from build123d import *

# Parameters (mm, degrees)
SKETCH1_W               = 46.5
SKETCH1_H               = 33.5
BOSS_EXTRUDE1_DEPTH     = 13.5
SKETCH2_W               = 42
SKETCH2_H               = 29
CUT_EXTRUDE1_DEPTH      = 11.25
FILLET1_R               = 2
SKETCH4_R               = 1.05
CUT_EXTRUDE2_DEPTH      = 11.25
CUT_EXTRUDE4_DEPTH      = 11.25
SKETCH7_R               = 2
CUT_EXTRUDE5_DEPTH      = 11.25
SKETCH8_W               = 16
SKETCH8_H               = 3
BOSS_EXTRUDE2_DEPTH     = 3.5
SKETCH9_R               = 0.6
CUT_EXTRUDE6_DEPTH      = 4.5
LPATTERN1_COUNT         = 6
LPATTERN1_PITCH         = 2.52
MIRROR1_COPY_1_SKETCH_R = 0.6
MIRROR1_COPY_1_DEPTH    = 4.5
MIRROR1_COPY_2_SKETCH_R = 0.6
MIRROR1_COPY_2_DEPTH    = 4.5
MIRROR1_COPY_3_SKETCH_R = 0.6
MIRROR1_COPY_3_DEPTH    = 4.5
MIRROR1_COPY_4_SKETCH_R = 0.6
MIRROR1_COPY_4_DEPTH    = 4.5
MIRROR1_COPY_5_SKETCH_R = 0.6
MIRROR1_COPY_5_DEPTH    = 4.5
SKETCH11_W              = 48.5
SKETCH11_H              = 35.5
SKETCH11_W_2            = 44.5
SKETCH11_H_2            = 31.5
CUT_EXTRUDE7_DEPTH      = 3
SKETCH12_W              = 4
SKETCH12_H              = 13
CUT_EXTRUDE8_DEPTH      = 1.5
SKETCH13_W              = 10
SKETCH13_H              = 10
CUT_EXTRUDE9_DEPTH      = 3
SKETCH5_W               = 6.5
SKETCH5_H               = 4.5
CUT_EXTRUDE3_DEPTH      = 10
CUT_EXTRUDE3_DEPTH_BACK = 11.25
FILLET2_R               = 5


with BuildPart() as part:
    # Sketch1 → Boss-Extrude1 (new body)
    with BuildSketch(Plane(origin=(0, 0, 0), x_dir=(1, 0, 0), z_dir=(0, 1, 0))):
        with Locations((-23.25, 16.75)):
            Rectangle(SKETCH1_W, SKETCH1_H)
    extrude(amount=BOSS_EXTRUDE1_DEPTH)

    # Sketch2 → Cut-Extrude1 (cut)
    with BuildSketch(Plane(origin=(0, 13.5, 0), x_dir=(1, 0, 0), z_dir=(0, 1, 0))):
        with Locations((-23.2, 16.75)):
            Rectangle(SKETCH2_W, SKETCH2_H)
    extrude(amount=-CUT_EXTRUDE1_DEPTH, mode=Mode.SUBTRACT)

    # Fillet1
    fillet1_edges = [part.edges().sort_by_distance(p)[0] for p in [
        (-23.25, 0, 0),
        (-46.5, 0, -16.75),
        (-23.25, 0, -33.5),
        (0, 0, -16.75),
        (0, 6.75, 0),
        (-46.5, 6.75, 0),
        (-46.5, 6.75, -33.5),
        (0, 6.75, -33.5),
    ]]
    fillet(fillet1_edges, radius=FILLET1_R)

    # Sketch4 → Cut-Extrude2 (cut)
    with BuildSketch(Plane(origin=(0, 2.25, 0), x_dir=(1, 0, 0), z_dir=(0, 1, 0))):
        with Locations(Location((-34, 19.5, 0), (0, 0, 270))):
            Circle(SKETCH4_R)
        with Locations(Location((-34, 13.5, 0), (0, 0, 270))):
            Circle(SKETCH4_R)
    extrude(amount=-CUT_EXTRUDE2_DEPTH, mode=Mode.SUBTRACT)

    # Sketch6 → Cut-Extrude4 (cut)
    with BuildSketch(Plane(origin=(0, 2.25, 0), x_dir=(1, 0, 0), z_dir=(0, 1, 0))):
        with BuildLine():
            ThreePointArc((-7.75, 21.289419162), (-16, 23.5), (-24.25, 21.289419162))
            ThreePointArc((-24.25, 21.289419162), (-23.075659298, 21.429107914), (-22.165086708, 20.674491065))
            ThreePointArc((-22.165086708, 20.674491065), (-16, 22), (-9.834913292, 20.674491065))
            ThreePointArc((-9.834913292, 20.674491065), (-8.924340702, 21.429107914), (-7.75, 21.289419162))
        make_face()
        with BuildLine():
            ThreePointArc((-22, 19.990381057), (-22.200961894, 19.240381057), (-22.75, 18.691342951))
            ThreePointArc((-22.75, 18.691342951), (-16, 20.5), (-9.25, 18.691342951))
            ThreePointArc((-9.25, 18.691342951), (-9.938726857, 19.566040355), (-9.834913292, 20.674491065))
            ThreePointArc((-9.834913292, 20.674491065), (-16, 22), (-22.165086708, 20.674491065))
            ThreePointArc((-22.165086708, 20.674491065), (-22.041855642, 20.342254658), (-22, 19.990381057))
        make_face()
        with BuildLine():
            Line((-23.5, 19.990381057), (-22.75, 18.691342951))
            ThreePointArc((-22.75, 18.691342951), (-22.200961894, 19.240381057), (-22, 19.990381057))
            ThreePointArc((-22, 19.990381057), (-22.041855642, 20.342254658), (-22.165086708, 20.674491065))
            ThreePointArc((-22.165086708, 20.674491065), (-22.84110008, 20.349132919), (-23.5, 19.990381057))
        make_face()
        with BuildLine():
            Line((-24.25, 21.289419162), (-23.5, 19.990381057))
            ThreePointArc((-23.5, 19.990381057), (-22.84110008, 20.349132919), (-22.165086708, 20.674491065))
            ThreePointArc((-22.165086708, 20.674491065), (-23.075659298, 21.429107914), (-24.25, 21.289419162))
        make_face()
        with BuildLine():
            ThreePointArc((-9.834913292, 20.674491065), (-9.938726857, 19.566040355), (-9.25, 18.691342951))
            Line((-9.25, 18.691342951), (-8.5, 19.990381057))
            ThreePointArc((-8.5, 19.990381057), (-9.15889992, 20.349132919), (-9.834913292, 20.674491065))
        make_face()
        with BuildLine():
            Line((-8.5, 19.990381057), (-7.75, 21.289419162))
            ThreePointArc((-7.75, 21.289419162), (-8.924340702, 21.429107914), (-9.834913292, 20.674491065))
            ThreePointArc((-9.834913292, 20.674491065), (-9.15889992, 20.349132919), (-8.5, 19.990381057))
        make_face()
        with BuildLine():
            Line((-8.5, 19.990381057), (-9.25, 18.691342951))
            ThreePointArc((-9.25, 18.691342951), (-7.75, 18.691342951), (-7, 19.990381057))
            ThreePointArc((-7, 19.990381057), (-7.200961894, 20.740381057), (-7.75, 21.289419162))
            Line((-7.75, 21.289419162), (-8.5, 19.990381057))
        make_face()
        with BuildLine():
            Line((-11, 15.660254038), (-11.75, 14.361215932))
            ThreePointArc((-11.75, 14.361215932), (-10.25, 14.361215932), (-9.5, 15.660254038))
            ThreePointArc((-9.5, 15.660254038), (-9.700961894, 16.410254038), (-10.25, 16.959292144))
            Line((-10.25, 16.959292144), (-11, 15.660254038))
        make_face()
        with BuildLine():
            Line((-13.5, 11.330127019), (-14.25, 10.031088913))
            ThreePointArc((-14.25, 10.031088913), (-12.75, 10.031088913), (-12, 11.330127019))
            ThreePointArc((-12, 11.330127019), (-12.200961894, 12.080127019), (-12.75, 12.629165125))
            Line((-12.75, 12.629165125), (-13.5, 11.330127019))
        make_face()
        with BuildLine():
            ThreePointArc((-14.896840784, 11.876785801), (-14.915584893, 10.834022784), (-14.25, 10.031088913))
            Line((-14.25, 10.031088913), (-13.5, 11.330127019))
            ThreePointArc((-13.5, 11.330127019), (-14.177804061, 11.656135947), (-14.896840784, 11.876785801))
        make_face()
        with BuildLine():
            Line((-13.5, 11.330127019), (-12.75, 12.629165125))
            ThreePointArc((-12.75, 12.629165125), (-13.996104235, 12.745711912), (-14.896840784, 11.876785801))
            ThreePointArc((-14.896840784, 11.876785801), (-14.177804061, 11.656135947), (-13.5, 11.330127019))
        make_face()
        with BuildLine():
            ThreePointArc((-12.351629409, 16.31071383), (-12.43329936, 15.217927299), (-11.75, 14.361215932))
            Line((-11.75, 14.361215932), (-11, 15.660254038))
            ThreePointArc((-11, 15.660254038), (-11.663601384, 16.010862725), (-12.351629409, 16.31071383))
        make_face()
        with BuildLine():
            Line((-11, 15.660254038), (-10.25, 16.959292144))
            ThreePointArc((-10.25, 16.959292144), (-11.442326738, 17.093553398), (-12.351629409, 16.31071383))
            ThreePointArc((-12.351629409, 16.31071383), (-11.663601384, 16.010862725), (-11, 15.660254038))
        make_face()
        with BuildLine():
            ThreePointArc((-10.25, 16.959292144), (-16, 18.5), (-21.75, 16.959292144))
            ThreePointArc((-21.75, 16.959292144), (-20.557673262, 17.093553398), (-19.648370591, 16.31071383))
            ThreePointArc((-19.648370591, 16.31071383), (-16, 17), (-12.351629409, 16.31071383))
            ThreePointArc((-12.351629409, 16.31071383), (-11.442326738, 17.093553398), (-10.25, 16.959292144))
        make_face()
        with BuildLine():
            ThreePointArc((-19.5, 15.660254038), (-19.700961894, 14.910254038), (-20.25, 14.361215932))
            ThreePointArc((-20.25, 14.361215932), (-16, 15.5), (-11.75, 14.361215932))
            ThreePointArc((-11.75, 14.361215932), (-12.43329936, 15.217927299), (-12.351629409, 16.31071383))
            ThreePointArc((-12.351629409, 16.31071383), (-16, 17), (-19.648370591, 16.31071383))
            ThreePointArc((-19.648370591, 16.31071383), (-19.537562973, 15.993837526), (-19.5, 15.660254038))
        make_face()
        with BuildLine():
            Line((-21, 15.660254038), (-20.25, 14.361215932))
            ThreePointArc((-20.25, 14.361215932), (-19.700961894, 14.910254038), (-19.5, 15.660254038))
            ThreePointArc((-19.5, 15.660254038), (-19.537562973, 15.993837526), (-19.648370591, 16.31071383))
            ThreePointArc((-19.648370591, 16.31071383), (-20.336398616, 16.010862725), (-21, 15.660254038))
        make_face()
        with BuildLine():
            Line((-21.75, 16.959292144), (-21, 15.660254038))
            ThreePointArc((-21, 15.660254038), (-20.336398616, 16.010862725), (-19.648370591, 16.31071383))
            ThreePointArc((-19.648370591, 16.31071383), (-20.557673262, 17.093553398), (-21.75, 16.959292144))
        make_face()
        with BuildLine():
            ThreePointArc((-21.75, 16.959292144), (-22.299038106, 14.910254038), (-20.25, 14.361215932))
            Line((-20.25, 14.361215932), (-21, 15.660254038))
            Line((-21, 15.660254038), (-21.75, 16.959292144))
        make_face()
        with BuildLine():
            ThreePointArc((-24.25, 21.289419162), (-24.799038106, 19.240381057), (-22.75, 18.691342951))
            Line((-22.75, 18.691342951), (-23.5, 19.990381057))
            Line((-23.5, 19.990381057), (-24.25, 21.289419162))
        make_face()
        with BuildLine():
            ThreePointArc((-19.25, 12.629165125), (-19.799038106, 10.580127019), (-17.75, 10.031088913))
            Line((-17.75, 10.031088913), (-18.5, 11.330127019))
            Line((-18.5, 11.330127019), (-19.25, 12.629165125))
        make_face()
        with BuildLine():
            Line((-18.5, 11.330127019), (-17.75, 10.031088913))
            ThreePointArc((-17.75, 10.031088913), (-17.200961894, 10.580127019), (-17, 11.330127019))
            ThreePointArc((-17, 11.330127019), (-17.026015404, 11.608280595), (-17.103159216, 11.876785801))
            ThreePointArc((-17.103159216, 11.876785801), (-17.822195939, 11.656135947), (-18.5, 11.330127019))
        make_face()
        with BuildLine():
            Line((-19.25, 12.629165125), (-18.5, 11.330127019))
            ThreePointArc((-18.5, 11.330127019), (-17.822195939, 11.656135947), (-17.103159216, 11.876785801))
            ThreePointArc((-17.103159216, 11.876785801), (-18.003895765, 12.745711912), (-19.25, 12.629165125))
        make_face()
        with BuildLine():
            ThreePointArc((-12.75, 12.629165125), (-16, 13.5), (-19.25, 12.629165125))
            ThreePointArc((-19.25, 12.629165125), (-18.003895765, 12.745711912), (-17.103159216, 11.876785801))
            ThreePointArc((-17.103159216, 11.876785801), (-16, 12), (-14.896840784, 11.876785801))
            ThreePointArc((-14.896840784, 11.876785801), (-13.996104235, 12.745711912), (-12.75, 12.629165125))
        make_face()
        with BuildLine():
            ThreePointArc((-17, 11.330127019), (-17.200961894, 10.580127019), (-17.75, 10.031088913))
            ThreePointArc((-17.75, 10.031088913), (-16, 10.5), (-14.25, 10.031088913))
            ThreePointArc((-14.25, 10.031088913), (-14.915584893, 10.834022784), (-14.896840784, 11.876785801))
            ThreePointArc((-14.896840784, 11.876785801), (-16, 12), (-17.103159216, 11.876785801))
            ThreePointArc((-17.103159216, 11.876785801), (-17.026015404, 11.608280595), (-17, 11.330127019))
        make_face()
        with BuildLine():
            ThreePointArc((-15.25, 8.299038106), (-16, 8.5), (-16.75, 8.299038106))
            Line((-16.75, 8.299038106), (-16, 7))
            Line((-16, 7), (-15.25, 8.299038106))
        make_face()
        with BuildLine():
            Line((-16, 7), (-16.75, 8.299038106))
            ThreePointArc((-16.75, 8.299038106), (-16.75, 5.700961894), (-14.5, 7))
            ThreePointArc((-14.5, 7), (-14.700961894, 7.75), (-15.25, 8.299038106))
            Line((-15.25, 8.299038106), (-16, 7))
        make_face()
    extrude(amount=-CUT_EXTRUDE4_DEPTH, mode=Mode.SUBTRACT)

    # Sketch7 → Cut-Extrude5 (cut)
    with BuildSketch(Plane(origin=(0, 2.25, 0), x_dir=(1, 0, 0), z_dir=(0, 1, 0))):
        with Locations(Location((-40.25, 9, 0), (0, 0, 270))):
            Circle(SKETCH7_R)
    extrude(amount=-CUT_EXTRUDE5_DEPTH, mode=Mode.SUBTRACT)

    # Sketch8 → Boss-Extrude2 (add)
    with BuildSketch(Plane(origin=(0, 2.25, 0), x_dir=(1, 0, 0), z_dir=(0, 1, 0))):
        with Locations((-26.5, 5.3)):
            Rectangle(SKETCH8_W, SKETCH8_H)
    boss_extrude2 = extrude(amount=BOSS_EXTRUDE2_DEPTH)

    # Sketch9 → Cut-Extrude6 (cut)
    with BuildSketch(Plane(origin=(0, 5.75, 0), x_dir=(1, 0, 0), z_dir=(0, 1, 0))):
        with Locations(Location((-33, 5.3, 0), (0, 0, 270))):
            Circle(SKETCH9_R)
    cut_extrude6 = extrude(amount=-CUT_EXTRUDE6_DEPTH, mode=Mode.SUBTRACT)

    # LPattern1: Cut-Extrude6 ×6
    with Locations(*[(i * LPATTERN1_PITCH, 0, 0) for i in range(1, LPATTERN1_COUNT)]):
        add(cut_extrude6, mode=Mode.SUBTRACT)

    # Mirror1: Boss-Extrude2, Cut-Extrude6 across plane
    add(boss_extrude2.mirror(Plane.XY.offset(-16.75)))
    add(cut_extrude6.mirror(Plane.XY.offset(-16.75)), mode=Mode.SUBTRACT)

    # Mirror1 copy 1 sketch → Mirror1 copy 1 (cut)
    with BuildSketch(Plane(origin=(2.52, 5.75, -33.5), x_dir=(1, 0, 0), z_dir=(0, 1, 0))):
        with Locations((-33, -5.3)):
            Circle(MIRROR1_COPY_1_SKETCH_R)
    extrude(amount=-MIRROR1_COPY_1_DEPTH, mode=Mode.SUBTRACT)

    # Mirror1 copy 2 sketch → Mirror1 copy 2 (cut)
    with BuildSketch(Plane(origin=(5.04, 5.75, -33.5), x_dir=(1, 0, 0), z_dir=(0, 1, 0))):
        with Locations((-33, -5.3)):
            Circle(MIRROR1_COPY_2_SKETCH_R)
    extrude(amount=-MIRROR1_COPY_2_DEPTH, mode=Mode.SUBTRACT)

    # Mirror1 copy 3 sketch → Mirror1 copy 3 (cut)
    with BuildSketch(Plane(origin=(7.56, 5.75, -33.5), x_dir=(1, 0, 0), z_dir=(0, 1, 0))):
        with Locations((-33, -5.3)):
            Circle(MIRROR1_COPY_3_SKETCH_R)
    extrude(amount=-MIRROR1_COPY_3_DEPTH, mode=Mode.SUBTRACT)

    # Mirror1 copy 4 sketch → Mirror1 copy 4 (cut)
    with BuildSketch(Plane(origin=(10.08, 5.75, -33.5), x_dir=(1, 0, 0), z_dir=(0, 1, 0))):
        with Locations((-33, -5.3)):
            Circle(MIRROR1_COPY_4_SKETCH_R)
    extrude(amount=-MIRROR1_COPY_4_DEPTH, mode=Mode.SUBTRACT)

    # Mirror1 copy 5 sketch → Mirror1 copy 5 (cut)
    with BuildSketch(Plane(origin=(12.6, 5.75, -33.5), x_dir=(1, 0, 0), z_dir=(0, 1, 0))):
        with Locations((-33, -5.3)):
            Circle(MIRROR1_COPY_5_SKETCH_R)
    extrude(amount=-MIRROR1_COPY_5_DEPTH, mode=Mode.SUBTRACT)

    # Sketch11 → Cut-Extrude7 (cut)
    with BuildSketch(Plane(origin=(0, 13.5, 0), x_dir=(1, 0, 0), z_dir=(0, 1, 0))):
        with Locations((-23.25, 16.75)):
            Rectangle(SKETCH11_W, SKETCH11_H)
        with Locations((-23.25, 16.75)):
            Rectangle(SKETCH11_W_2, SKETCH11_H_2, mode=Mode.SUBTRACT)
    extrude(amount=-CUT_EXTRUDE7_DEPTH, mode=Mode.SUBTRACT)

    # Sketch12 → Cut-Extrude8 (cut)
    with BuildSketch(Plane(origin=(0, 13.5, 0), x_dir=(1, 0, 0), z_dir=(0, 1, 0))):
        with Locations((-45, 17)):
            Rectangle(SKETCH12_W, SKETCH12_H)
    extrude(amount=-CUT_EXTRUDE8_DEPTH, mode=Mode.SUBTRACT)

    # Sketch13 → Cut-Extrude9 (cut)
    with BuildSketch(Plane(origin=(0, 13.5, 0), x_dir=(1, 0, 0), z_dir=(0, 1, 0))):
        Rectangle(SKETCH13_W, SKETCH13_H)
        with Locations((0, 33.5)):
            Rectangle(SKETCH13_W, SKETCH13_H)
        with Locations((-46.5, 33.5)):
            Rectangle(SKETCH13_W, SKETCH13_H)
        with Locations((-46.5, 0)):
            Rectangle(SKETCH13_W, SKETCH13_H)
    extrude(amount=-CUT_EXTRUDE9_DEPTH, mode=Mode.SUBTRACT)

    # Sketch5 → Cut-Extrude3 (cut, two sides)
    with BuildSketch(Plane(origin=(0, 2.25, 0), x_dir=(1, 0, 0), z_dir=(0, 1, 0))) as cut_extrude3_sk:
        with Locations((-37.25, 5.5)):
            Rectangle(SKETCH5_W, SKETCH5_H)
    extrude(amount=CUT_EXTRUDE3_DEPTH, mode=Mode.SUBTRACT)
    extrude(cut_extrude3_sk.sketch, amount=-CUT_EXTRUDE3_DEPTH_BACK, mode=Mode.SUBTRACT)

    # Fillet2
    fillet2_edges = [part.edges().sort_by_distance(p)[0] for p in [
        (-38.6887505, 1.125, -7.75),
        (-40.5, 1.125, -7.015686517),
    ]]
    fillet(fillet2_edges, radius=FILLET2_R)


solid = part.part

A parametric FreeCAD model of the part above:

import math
import FreeCAD as App
import Part
import Sketcher

V = App.Vector


def edges_at(feature, points):
    """Names of the edges that pass closest to the given points."""
    edges = feature.Shape.Edges
    near = lambda p: min(range(len(edges)), key=lambda i: edges[i].distToShape(Part.Vertex(*p))[0])
    return sorted({f"Edge{near(p) + 1}" for p in points})


def add_polygon(sketch, points):
    """Adds a closed chain of lines whose ends are joined by coincident constraints."""
    first, n = sketch.GeometryCount, len(points)
    for a, b in zip(points, points[1:] + points[:1]):
        sketch.addGeometry(Part.LineSegment(App.Vector(*a, 0), App.Vector(*b, 0)), False)
    for i in range(n):
        sketch.addConstraint(Sketcher.Constraint("Coincident", first + i, 2, first + (i + 1) % n, 1))

doc = App.newDocument("Part")
body = doc.addObject("PartDesign::Body", "Body")

# Sketch on XZ plane
sketch1 = body.newObject("Sketcher::SketchObject", "Sketch")
sketch1.AttachmentSupport = (doc.getObject("XZ_Plane"), [""])
sketch1.MapMode = "FlatFace"
add_polygon(sketch1, [(-46, -34), (-46, 0), (0, 0), (0, -34)])  # lines 0-3
sketch1.addConstraint(Sketcher.Constraint("Vertical", 0))
sketch1.addConstraint(Sketcher.Constraint("Horizontal", 1))
sketch1.addConstraint(Sketcher.Constraint("Vertical", 2))
sketch1.addConstraint(Sketcher.Constraint("Horizontal", 3))
sketch1.addConstraint(Sketcher.Constraint("Coincident", 1, 2, -1, 1))
sketch1.addConstraint(Sketcher.Constraint("DistanceX", 1, 1, 1, 2, 46.5))
sketch1.addConstraint(Sketcher.Constraint("DistanceY", 0, 1, 0, 2, 33.5))
pad1 = body.newObject("PartDesign::Pad", "Pad")
pad1.Profile = sketch1
pad1.Length = 13.5
pad1.Reversed = True

# Sketch on XZ plane
sketch2 = body.newObject("Sketcher::SketchObject", "Sketch001")
sketch2.AttachmentSupport = (doc.getObject("XZ_Plane"), [""])
sketch2.MapMode = "FlatFace"
sketch2.AttachmentOffset = App.Placement(V(0, 0, -13.5), App.Rotation())
add_polygon(sketch2, [(-44, -31), (-44, -2), (-2, -2), (-2, -31)])  # lines 0-3
sketch2.addConstraint(Sketcher.Constraint("Vertical", 0))
sketch2.addConstraint(Sketcher.Constraint("Horizontal", 1))
sketch2.addConstraint(Sketcher.Constraint("Vertical", 2))
sketch2.addConstraint(Sketcher.Constraint("Horizontal", 3))
sketch2.addConstraint(Sketcher.Constraint("DistanceX", 1, 1, 1, 2, 42.0))
sketch2.addConstraint(Sketcher.Constraint("DistanceY", 0, 1, 0, 2, 29.0))
sketch2.addConstraint(Sketcher.Constraint("DistanceX", 0, 2, -1, 1, 44.2))
sketch2.addConstraint(Sketcher.Constraint("DistanceY", 0, 2, -1, 1, 2.25))
pocket1 = body.newObject("PartDesign::Pocket", "Pocket")
pocket1.Profile = sketch2
pocket1.Length = 11.25
pocket1.Reversed = True
doc.recompute()

fillet = body.newObject("PartDesign::Fillet", "Fillet")
fillet.Base = (pocket1, edges_at(pocket1, [
    (-23.25, 0, 0),
    (-46.5, 0, -16.75),
    (-23.25, 0, -33.5),
    (0, 0, -16.75),
    (0, 6.75, 0),
    (-46.5, 6.75, 0),
    (-46.5, 6.75, -33.5),
    (0, 6.75, -33.5),
]))
fillet.Radius = 2

# Sketch on XZ plane
sketch3 = body.newObject("Sketcher::SketchObject", "Sketch002")
sketch3.AttachmentSupport = (doc.getObject("XZ_Plane"), [""])
sketch3.MapMode = "FlatFace"
sketch3.AttachmentOffset = App.Placement(V(0, 0, -2.25), App.Rotation())
sketch3.addGeometry(Part.Circle(V(-34, -19.5, 0), V(0, 0, 1), 1.1), False)
sketch3.addGeometry(Part.Circle(V(-34, -13.5, 0), V(0, 0, 1), 1.1), False)
sketch3.addConstraint(Sketcher.Constraint("Equal", 0, 1))
sketch3.addConstraint(Sketcher.Constraint("Vertical", 0, 3, 1, 3))
sketch3.addConstraint(Sketcher.Constraint("Diameter", 0, 2.1))
sketch3.addConstraint(Sketcher.Constraint("DistanceX", 0, 3, -1, 1, 34.0))
sketch3.addConstraint(Sketcher.Constraint("DistanceY", 0, 3, 1, 3, 6.0))
sketch3.addConstraint(Sketcher.Constraint("DistanceY", 0, 3, -1, 1, 19.5))
pocket2 = body.newObject("PartDesign::Pocket", "Pocket001")
pocket2.Profile = sketch3
pocket2.Length = 11.25
pocket2.Reversed = True

# Sketch on XZ plane
sketch4 = body.newObject("Sketcher::SketchObject", "Sketch003")
sketch4.AttachmentSupport = (doc.getObject("XZ_Plane"), [""])
sketch4.MapMode = "FlatFace"
sketch4.AttachmentOffset = App.Placement(V(0, 0, -2.25), App.Rotation())
sketch4.addGeometry(Part.ArcOfCircle(Part.Circle(V(-16, -7, 0), V(0, 0, 1), 16.5), math.radians(-120), math.radians(-60)), False)
sketch4.addGeometry(Part.ArcOfCircle(Part.Circle(V(-23.5, -20, 0), V(0, 0, 1), 1.5), math.radians(60), math.radians(240)), False)
sketch4.addGeometry(Part.ArcOfCircle(Part.Circle(V(-16, -7, 0), V(0, 0, 1), 13.5), math.radians(-120), math.radians(-60)), False)
sketch4.addGeometry(Part.ArcOfCircle(Part.Circle(V(-8.5, -20, 0), V(0, 0, 1), 1.5), math.radians(0), math.radians(120)), False)
sketch4.addGeometry(Part.ArcOfCircle(Part.Circle(V(-8.5, -20, 0), V(0, 0, 1), 1.5), math.radians(-60), math.radians(0)), False)
sketch4.addGeometry(Part.ArcOfCircle(Part.Circle(V(-16, -7, 0), V(0, 0, 1), 8.5), math.radians(-120), math.radians(-60)), False)
sketch4.addGeometry(Part.ArcOfCircle(Part.Circle(V(-11, -15.7, 0), V(0, 0, 1), 1.5), math.radians(0), math.radians(120)), False)
sketch4.addGeometry(Part.ArcOfCircle(Part.Circle(V(-11, -15.7, 0), V(0, 0, 1), 1.5), math.radians(-60), math.radians(0)), False)
sketch4.addGeometry(Part.ArcOfCircle(Part.Circle(V(-16, -7, 0), V(0, 0, 1), 11.5), math.radians(-120), math.radians(-60)), False)
sketch4.addGeometry(Part.ArcOfCircle(Part.Circle(V(-21, -15.7, 0), V(0, 0, 1), 1.5), math.radians(60), math.radians(240)), False)
sketch4.addGeometry(Part.ArcOfCircle(Part.Circle(V(-13.5, -11.3, 0), V(0, 0, 1), 1.5), math.radians(0), math.radians(120)), False)
sketch4.addGeometry(Part.ArcOfCircle(Part.Circle(V(-13.5, -11.3, 0), V(0, 0, 1), 1.5), math.radians(-60), math.radians(0)), False)
sketch4.addGeometry(Part.ArcOfCircle(Part.Circle(V(-16, -7, 0), V(0, 0, 1), 6.5), math.radians(-120), math.radians(-60)), False)
sketch4.addGeometry(Part.ArcOfCircle(Part.Circle(V(-18.5, -11.3, 0), V(0, 0, 1), 1.5), math.radians(60), math.radians(240)), False)
sketch4.addGeometry(Part.ArcOfCircle(Part.Circle(V(-16, -7, 0), V(0, 0, 1), 3.5), math.radians(-120), math.radians(-60)), False)
sketch4.addGeometry(Part.ArcOfCircle(Part.Circle(V(-16, -7, 0), V(0, 0, 1), 1.5), math.radians(-120), math.radians(-60)), False)
sketch4.addGeometry(Part.ArcOfCircle(Part.Circle(V(-16, -7, 0), V(0, 0, 1), 1.5), math.radians(0), math.radians(240)), False)
sketch4.addGeometry(Part.ArcOfCircle(Part.Circle(V(-16, -7, 0), V(0, 0, 1), 1.5), math.radians(-60), math.radians(0)), False)
sketch4.addConstraint(Sketcher.Constraint("Tangent", 0, 1, 1, 2))
sketch4.addConstraint(Sketcher.Constraint("Tangent", 1, 1, 2, 1))
sketch4.addConstraint(Sketcher.Constraint("Tangent", 2, 2, 3, 2))
sketch4.addConstraint(Sketcher.Constraint("Tangent", 3, 1, 4, 2))
sketch4.addConstraint(Sketcher.Constraint("Tangent", 4, 1, 0, 2))
sketch4.addConstraint(Sketcher.Constraint("Tangent", 5, 2, 6, 2))
sketch4.addConstraint(Sketcher.Constraint("Tangent", 6, 1, 7, 2))
sketch4.addConstraint(Sketcher.Constraint("Tangent", 7, 1, 8, 2))
sketch4.addConstraint(Sketcher.Constraint("Tangent", 8, 1, 9, 2))
sketch4.addConstraint(Sketcher.Constraint("Tangent", 9, 1, 5, 1))
sketch4.addConstraint(Sketcher.Constraint("Tangent", 10, 1, 11, 2))
sketch4.addConstraint(Sketcher.Constraint("Tangent", 11, 1, 12, 2))
sketch4.addConstraint(Sketcher.Constraint("Tangent", 12, 1, 13, 2))
sketch4.addConstraint(Sketcher.Constraint("Tangent", 13, 1, 14, 1))
sketch4.addConstraint(Sketcher.Constraint("Tangent", 14, 2, 10, 2))
sketch4.addConstraint(Sketcher.Constraint("Tangent", 15, 1, 16, 2))
sketch4.addConstraint(Sketcher.Constraint("Tangent", 16, 1, 17, 2))
sketch4.addConstraint(Sketcher.Constraint("Tangent", 17, 1, 15, 2))
sketch4.addConstraint(Sketcher.Constraint("Coincident", 2, 3, 0, 3))
sketch4.addConstraint(Sketcher.Constraint("Coincident", 5, 3, 0, 3))
sketch4.addConstraint(Sketcher.Constraint("Coincident", 8, 3, 0, 3))
sketch4.addConstraint(Sketcher.Constraint("Coincident", 12, 3, 0, 3))
sketch4.addConstraint(Sketcher.Constraint("Coincident", 14, 3, 0, 3))
sketch4.addConstraint(Sketcher.Constraint("Coincident", 15, 3, 0, 3))
sketch4.addConstraint(Sketcher.Constraint("Equal", 1, 3))
sketch4.addConstraint(Sketcher.Constraint("Equal", 4, 6))
sketch4.addConstraint(Sketcher.Constraint("Equal", 6, 7))
sketch4.addConstraint(Sketcher.Constraint("Equal", 9, 10))
sketch4.addConstraint(Sketcher.Constraint("Equal", 10, 11))
sketch4.addConstraint(Sketcher.Constraint("Equal", 13, 15))
sketch4.addConstraint(Sketcher.Constraint("Horizontal", 1, 3, 3, 3))
sketch4.addConstraint(Sketcher.Constraint("Horizontal", 7, 3, 9, 3))
sketch4.addConstraint(Sketcher.Constraint("Horizontal", 11, 3, 13, 3))
sketch4.addConstraint(Sketcher.Constraint("Horizontal", 4, 3, 3, 1))
sketch4.addConstraint(Sketcher.Constraint("Horizontal", 9, 3, 6, 1))
sketch4.addConstraint(Sketcher.Constraint("Horizontal", 13, 3, 10, 1))
sketch4.addConstraint(Sketcher.Constraint("Horizontal", 17, 3, 16, 1))
sketch4.addConstraint(Sketcher.Constraint("Horizontal", 15, 1, 17, 1))
sketch4.addConstraint(Sketcher.Constraint("Radius", 0, 16.5))
sketch4.addConstraint(Sketcher.Constraint("Radius", 1, 1.5))
sketch4.addConstraint(Sketcher.Constraint("Radius", 5, 8.5))
sketch4.addConstraint(Sketcher.Constraint("Radius", 12, 6.5))
sketch4.addConstraint(Sketcher.Constraint("DistanceX", 0, 3, -1, 1, 16.0))
sketch4.addConstraint(Sketcher.Constraint("DistanceY", 0, 3, -1, 1, 7.0))
sketch4.addConstraint(Sketcher.Constraint("DistanceX", 6, 3, -1, 1, 11.0))
sketch4.addConstraint(Sketcher.Constraint("DistanceX", 3, 1, -1, 1, 7.0))
sketch4.addConstraint(Sketcher.Constraint("DistanceX", 10, 1, -1, 1, 12.0))
sketch4.addConstraint(Sketcher.Constraint("DistanceX", 15, 1, -1, 1, 16.75))
pocket3 = body.newObject("PartDesign::Pocket", "Pocket002")
pocket3.Profile = sketch4
pocket3.Length = 11.25
pocket3.Reversed = True

# Sketch on XZ plane
sketch5 = body.newObject("Sketcher::SketchObject", "Sketch004")
sketch5.AttachmentSupport = (doc.getObject("XZ_Plane"), [""])
sketch5.MapMode = "FlatFace"
sketch5.AttachmentOffset = App.Placement(V(0, 0, -2.25), App.Rotation())
sketch5.addGeometry(Part.Circle(V(-40.2, -9, 0), V(0, 0, 1), 2), False)
sketch5.addConstraint(Sketcher.Constraint("Diameter", 0, 4.0))
sketch5.addConstraint(Sketcher.Constraint("DistanceY", 0, 3, -1, 1, 9.0))
sketch5.addConstraint(Sketcher.Constraint("DistanceX", 0, 3, -1, 1, 40.25))
pocket4 = body.newObject("PartDesign::Pocket", "Pocket003")
pocket4.Profile = sketch5
pocket4.Length = 11.25
pocket4.Reversed = True

# Sketch on XZ plane
sketch6 = body.newObject("Sketcher::SketchObject", "Sketch005")
sketch6.AttachmentSupport = (doc.getObject("XZ_Plane"), [""])
sketch6.MapMode = "FlatFace"
sketch6.AttachmentOffset = App.Placement(V(0, 0, -2.25), App.Rotation())
add_polygon(sketch6, [(-34.5, -6.8), (-34.5, -3.8), (-18.5, -3.8), (-18.5, -6.8)])  # lines 0-3
sketch6.addConstraint(Sketcher.Constraint("Vertical", 0))
sketch6.addConstraint(Sketcher.Constraint("Horizontal", 1))
sketch6.addConstraint(Sketcher.Constraint("Vertical", 2))
sketch6.addConstraint(Sketcher.Constraint("Horizontal", 3))
sketch6.addConstraint(Sketcher.Constraint("DistanceX", 1, 1, 1, 2, 16.0))
sketch6.addConstraint(Sketcher.Constraint("DistanceY", 0, 1, 0, 2, 3.0))
sketch6.addConstraint(Sketcher.Constraint("DistanceX", 0, 2, -1, 1, 34.5))
sketch6.addConstraint(Sketcher.Constraint("DistanceY", 0, 2, -1, 1, 3.8))
pad2 = body.newObject("PartDesign::Pad", "Pad001")
pad2.Profile = sketch6
pad2.Length = 3.5
pad2.Reversed = True

# Sketch on XZ plane
sketch7 = body.newObject("Sketcher::SketchObject", "Sketch006")
sketch7.AttachmentSupport = (doc.getObject("XZ_Plane"), [""])
sketch7.MapMode = "FlatFace"
sketch7.AttachmentOffset = App.Placement(V(0, 0, -5.75), App.Rotation())
sketch7.addGeometry(Part.Circle(V(-33, -5.3, 0), V(0, 0, 1), 0.6), False)
sketch7.addConstraint(Sketcher.Constraint("Diameter", 0, 1.2))
sketch7.addConstraint(Sketcher.Constraint("DistanceX", 0, 3, -1, 1, 33.0))
sketch7.addConstraint(Sketcher.Constraint("DistanceY", 0, 3, -1, 1, 5.3))
pocket5 = body.newObject("PartDesign::Pocket", "Pocket004")
pocket5.Profile = sketch7
pocket5.Length = 4.5
pocket5.Reversed = True
doc.recompute()

linearpattern = body.newObject("PartDesign::LinearPattern", "LinearPattern")
linearpattern.Originals = [pocket5]
linearpattern.Direction = (doc.getObject("X_Axis"), [""])
linearpattern.Mode = "offset"
linearpattern.Offset = 2.52
linearpattern.Occurrences = 6
body.Tip = linearpattern
doc.recompute()

datumplane = body.newObject("PartDesign::Plane", "DatumPlane")
datumplane.AttachmentSupport = (doc.getObject("XY_Plane"), [""])
datumplane.MapMode = "FlatFace"
datumplane.AttachmentOffset = App.Placement(V(0, 0, -16.75), App.Rotation())
mirrored = body.newObject("PartDesign::Mirrored", "Mirrored")
mirrored.Originals = [pad2, pocket5]
mirrored.MirrorPlane = (datumplane, [""])
body.Tip = mirrored

# Sketch on XZ plane
sketch8 = body.newObject("Sketcher::SketchObject", "Sketch007")
sketch8.AttachmentSupport = (doc.getObject("XZ_Plane"), [""])
sketch8.MapMode = "FlatFace"
sketch8.AttachmentOffset = App.Placement(V(0, 0, -5.75), App.Rotation())
sketch8.addGeometry(Part.Circle(V(-30.5, -28.2, 0), V(0, 0, 1), 0.6), False)
sketch8.addConstraint(Sketcher.Constraint("Diameter", 0, 1.2))
sketch8.addConstraint(Sketcher.Constraint("DistanceY", 0, 3, -1, 1, 28.2))
sketch8.addConstraint(Sketcher.Constraint("DistanceX", 0, 3, -1, 1, 30.48))
pocket6 = body.newObject("PartDesign::Pocket", "Pocket005")
pocket6.Profile = sketch8
pocket6.Length = 4.5
pocket6.Reversed = True

# Sketch on XZ plane
sketch9 = body.newObject("Sketcher::SketchObject", "Sketch008")
sketch9.AttachmentSupport = (doc.getObject("XZ_Plane"), [""])
sketch9.MapMode = "FlatFace"
sketch9.AttachmentOffset = App.Placement(V(0, 0, -5.75), App.Rotation())
sketch9.addGeometry(Part.Circle(V(-28, -28.2, 0), V(0, 0, 1), 0.6), False)
sketch9.addConstraint(Sketcher.Constraint("Diameter", 0, 1.2))
sketch9.addConstraint(Sketcher.Constraint("DistanceY", 0, 3, -1, 1, 28.2))
sketch9.addConstraint(Sketcher.Constraint("DistanceX", 0, 3, -1, 1, 27.96))
pocket7 = body.newObject("PartDesign::Pocket", "Pocket006")
pocket7.Profile = sketch9
pocket7.Length = 4.5
pocket7.Reversed = True

# Sketch on XZ plane
sketch10 = body.newObject("Sketcher::SketchObject", "Sketch009")
sketch10.AttachmentSupport = (doc.getObject("XZ_Plane"), [""])
sketch10.MapMode = "FlatFace"
sketch10.AttachmentOffset = App.Placement(V(0, 0, -5.75), App.Rotation())
sketch10.addGeometry(Part.Circle(V(-25.4, -28.2, 0), V(0, 0, 1), 0.6), False)
sketch10.addConstraint(Sketcher.Constraint("Diameter", 0, 1.2))
sketch10.addConstraint(Sketcher.Constraint("DistanceY", 0, 3, -1, 1, 28.2))
sketch10.addConstraint(Sketcher.Constraint("DistanceX", 0, 3, -1, 1, 25.44))
pocket8 = body.newObject("PartDesign::Pocket", "Pocket007")
pocket8.Profile = sketch10
pocket8.Length = 4.5
pocket8.Reversed = True

# Sketch on XZ plane
sketch11 = body.newObject("Sketcher::SketchObject", "Sketch010")
sketch11.AttachmentSupport = (doc.getObject("XZ_Plane"), [""])
sketch11.MapMode = "FlatFace"
sketch11.AttachmentOffset = App.Placement(V(0, 0, -5.75), App.Rotation())
sketch11.addGeometry(Part.Circle(V(-22.9, -28.2, 0), V(0, 0, 1), 0.6), False)
sketch11.addConstraint(Sketcher.Constraint("Diameter", 0, 1.2))
sketch11.addConstraint(Sketcher.Constraint("DistanceY", 0, 3, -1, 1, 28.2))
sketch11.addConstraint(Sketcher.Constraint("DistanceX", 0, 3, -1, 1, 22.92))
pocket9 = body.newObject("PartDesign::Pocket", "Pocket008")
pocket9.Profile = sketch11
pocket9.Length = 4.5
pocket9.Reversed = True

# Sketch on XZ plane
sketch12 = body.newObject("Sketcher::SketchObject", "Sketch011")
sketch12.AttachmentSupport = (doc.getObject("XZ_Plane"), [""])
sketch12.MapMode = "FlatFace"
sketch12.AttachmentOffset = App.Placement(V(0, 0, -5.75), App.Rotation())
sketch12.addGeometry(Part.Circle(V(-20.4, -28.2, 0), V(0, 0, 1), 0.6), False)
sketch12.addConstraint(Sketcher.Constraint("Diameter", 0, 1.2))
sketch12.addConstraint(Sketcher.Constraint("DistanceX", 0, 3, -1, 1, 20.4))
sketch12.addConstraint(Sketcher.Constraint("DistanceY", 0, 3, -1, 1, 28.2))
pocket10 = body.newObject("PartDesign::Pocket", "Pocket009")
pocket10.Profile = sketch12
pocket10.Length = 4.5
pocket10.Reversed = True

# Sketch on XZ plane
sketch13 = body.newObject("Sketcher::SketchObject", "Sketch012")
sketch13.AttachmentSupport = (doc.getObject("XZ_Plane"), [""])
sketch13.MapMode = "FlatFace"
sketch13.AttachmentOffset = App.Placement(V(0, 0, -13.5), App.Rotation())
add_polygon(sketch13, [(-48, -34), (-48, 1), (1, 1), (1, -34)])  # lines 0-3
add_polygon(sketch13, [(-1, -1), (-46, -1), (-46, -32), (-1, -32)])  # lines 4-7
sketch13.addConstraint(Sketcher.Constraint("Vertical", 0))
sketch13.addConstraint(Sketcher.Constraint("Horizontal", 1))
sketch13.addConstraint(Sketcher.Constraint("Vertical", 2))
sketch13.addConstraint(Sketcher.Constraint("Horizontal", 3))
sketch13.addConstraint(Sketcher.Constraint("Horizontal", 4))
sketch13.addConstraint(Sketcher.Constraint("Vertical", 5))
sketch13.addConstraint(Sketcher.Constraint("Horizontal", 6))
sketch13.addConstraint(Sketcher.Constraint("Vertical", 7))
sketch13.addConstraint(Sketcher.Constraint("Symmetric", 1, 2, 7, 2, -1, 1))
sketch13.addConstraint(Sketcher.Constraint("DistanceX", 1, 1, 1, 2, 48.5))
sketch13.addConstraint(Sketcher.Constraint("DistanceX", 4, 2, 4, 1, 44.5))
sketch13.addConstraint(Sketcher.Constraint("DistanceY", 0, 1, 0, 2, 35.5))
sketch13.addConstraint(Sketcher.Constraint("DistanceY", 5, 2, 5, 1, 31.5))
sketch13.addConstraint(Sketcher.Constraint("DistanceY", -1, 1, 0, 2, 1.0))
sketch13.addConstraint(Sketcher.Constraint("DistanceX", -1, 1, 1, 2, 1.0))
pocket11 = body.newObject("PartDesign::Pocket", "Pocket010")
pocket11.Profile = sketch13
pocket11.Length = 3
pocket11.Reversed = True

# Sketch on XZ plane
sketch14 = body.newObject("Sketcher::SketchObject", "Sketch013")
sketch14.AttachmentSupport = (doc.getObject("XZ_Plane"), [""])
sketch14.MapMode = "FlatFace"
sketch14.AttachmentOffset = App.Placement(V(0, 0, -13.5), App.Rotation())
add_polygon(sketch14, [(-47, -23.5), (-47, -10.5), (-43, -10.5), (-43, -23.5)])  # lines 0-3
sketch14.addConstraint(Sketcher.Constraint("Vertical", 0))
sketch14.addConstraint(Sketcher.Constraint("Horizontal", 1))
sketch14.addConstraint(Sketcher.Constraint("Vertical", 2))
sketch14.addConstraint(Sketcher.Constraint("Horizontal", 3))
sketch14.addConstraint(Sketcher.Constraint("DistanceX", 1, 1, 1, 2, 4.0))
sketch14.addConstraint(Sketcher.Constraint("DistanceY", 0, 1, 0, 2, 13.0))
sketch14.addConstraint(Sketcher.Constraint("DistanceX", 0, 2, -1, 1, 47.0))
sketch14.addConstraint(Sketcher.Constraint("DistanceY", 0, 2, -1, 1, 10.5))
pocket12 = body.newObject("PartDesign::Pocket", "Pocket011")
pocket12.Profile = sketch14
pocket12.Length = 1.5
pocket12.Reversed = True

# Sketch on XZ plane
sketch15 = body.newObject("Sketcher::SketchObject", "Sketch014")
sketch15.AttachmentSupport = (doc.getObject("XZ_Plane"), [""])
sketch15.MapMode = "FlatFace"
sketch15.AttachmentOffset = App.Placement(V(0, 0, -13.5), App.Rotation())
add_polygon(sketch15, [(-5, -5), (-5, 5), (5, 5), (5, -5)])  # lines 0-3
add_polygon(sketch15, [(-5, -38), (-5, -28), (5, -28), (5, -38)])  # lines 4-7
add_polygon(sketch15, [(-52, -38), (-52, -28), (-42, -28), (-42, -38)])  # lines 8-11
add_polygon(sketch15, [(-52, -5), (-52, 5), (-42, 5), (-42, -5)])  # lines 12-15
sketch15.addConstraint(Sketcher.Constraint("Vertical", 0))
sketch15.addConstraint(Sketcher.Constraint("Horizontal", 1))
sketch15.addConstraint(Sketcher.Constraint("Vertical", 2))
sketch15.addConstraint(Sketcher.Constraint("Horizontal", 3))
sketch15.addConstraint(Sketcher.Constraint("Vertical", 4))
sketch15.addConstraint(Sketcher.Constraint("Horizontal", 5))
sketch15.addConstraint(Sketcher.Constraint("Vertical", 6))
sketch15.addConstraint(Sketcher.Constraint("Horizontal", 7))
sketch15.addConstraint(Sketcher.Constraint("Vertical", 8))
sketch15.addConstraint(Sketcher.Constraint("Horizontal", 9))
sketch15.addConstraint(Sketcher.Constraint("Vertical", 10))
sketch15.addConstraint(Sketcher.Constraint("Horizontal", 11))
sketch15.addConstraint(Sketcher.Constraint("Vertical", 12))
sketch15.addConstraint(Sketcher.Constraint("Horizontal", 13))
sketch15.addConstraint(Sketcher.Constraint("Vertical", 14))
sketch15.addConstraint(Sketcher.Constraint("Horizontal", 15))
sketch15.addConstraint(Sketcher.Constraint("Symmetric", 0, 2, 2, 2, -1, 1))
sketch15.addConstraint(Sketcher.Constraint("Horizontal", 5, 2, 8, 2))
sketch15.addConstraint(Sketcher.Constraint("Horizontal", 7, 2, 10, 2))
sketch15.addConstraint(Sketcher.Constraint("Horizontal", 1, 2, 12, 2))
sketch15.addConstraint(Sketcher.Constraint("Horizontal", 3, 2, 14, 2))
sketch15.addConstraint(Sketcher.Constraint("Vertical", 3, 2, 4, 2))
sketch15.addConstraint(Sketcher.Constraint("Vertical", 2, 2, 5, 2))
sketch15.addConstraint(Sketcher.Constraint("Vertical", 11, 2, 12, 2))
sketch15.addConstraint(Sketcher.Constraint("Vertical", 10, 2, 13, 2))
sketch15.addConstraint(Sketcher.Constraint("Equal", 7, 9))
sketch15.addConstraint(Sketcher.Constraint("Equal", 15, 0))
sketch15.addConstraint(Sketcher.Constraint("Equal", 2, 4))
sketch15.addConstraint(Sketcher.Constraint("DistanceX", 1, 1, 1, 2, 10.0))
sketch15.addConstraint(Sketcher.Constraint("DistanceY", 4, 2, -1, 1, 28.5))
sketch15.addConstraint(Sketcher.Constraint("DistanceX", 8, 2, -1, 1, 51.5))
pocket13 = body.newObject("PartDesign::Pocket", "Pocket012")
pocket13.Profile = sketch15
pocket13.Length = 3
pocket13.Reversed = True

# Sketch on XZ plane
sketch16 = body.newObject("Sketcher::SketchObject", "Sketch015")
sketch16.AttachmentSupport = (doc.getObject("XZ_Plane"), [""])
sketch16.MapMode = "FlatFace"
sketch16.AttachmentOffset = App.Placement(V(0, 0, -2.25), App.Rotation())
add_polygon(sketch16, [(-40.5, -7.8), (-40.5, -3.2), (-34, -3.2), (-34, -7.8)])  # lines 0-3
sketch16.addConstraint(Sketcher.Constraint("Vertical", 0))
sketch16.addConstraint(Sketcher.Constraint("Horizontal", 1))
sketch16.addConstraint(Sketcher.Constraint("Vertical", 2))
sketch16.addConstraint(Sketcher.Constraint("Horizontal", 3))
sketch16.addConstraint(Sketcher.Constraint("DistanceX", 1, 1, 1, 2, 6.5))
sketch16.addConstraint(Sketcher.Constraint("DistanceY", 0, 1, 0, 2, 4.5))
sketch16.addConstraint(Sketcher.Constraint("DistanceX", 1, 2, -1, 1, 34.0))
sketch16.addConstraint(Sketcher.Constraint("DistanceY", 0, 2, -1, 1, 3.25))
pocket14 = body.newObject("PartDesign::Pocket", "Pocket013")
pocket14.Profile = sketch16
pocket14.Type = "ThroughAll"
pocket14.Midplane = True
doc.recompute()

fillet2 = body.newObject("PartDesign::Fillet", "Fillet001")
fillet2.Base = (pocket14, edges_at(pocket14, [(-38.689, 1.125, -7.75), (-40.5, 1.125, -7.016)]))
fillet2.Radius = 5

doc.recompute()
